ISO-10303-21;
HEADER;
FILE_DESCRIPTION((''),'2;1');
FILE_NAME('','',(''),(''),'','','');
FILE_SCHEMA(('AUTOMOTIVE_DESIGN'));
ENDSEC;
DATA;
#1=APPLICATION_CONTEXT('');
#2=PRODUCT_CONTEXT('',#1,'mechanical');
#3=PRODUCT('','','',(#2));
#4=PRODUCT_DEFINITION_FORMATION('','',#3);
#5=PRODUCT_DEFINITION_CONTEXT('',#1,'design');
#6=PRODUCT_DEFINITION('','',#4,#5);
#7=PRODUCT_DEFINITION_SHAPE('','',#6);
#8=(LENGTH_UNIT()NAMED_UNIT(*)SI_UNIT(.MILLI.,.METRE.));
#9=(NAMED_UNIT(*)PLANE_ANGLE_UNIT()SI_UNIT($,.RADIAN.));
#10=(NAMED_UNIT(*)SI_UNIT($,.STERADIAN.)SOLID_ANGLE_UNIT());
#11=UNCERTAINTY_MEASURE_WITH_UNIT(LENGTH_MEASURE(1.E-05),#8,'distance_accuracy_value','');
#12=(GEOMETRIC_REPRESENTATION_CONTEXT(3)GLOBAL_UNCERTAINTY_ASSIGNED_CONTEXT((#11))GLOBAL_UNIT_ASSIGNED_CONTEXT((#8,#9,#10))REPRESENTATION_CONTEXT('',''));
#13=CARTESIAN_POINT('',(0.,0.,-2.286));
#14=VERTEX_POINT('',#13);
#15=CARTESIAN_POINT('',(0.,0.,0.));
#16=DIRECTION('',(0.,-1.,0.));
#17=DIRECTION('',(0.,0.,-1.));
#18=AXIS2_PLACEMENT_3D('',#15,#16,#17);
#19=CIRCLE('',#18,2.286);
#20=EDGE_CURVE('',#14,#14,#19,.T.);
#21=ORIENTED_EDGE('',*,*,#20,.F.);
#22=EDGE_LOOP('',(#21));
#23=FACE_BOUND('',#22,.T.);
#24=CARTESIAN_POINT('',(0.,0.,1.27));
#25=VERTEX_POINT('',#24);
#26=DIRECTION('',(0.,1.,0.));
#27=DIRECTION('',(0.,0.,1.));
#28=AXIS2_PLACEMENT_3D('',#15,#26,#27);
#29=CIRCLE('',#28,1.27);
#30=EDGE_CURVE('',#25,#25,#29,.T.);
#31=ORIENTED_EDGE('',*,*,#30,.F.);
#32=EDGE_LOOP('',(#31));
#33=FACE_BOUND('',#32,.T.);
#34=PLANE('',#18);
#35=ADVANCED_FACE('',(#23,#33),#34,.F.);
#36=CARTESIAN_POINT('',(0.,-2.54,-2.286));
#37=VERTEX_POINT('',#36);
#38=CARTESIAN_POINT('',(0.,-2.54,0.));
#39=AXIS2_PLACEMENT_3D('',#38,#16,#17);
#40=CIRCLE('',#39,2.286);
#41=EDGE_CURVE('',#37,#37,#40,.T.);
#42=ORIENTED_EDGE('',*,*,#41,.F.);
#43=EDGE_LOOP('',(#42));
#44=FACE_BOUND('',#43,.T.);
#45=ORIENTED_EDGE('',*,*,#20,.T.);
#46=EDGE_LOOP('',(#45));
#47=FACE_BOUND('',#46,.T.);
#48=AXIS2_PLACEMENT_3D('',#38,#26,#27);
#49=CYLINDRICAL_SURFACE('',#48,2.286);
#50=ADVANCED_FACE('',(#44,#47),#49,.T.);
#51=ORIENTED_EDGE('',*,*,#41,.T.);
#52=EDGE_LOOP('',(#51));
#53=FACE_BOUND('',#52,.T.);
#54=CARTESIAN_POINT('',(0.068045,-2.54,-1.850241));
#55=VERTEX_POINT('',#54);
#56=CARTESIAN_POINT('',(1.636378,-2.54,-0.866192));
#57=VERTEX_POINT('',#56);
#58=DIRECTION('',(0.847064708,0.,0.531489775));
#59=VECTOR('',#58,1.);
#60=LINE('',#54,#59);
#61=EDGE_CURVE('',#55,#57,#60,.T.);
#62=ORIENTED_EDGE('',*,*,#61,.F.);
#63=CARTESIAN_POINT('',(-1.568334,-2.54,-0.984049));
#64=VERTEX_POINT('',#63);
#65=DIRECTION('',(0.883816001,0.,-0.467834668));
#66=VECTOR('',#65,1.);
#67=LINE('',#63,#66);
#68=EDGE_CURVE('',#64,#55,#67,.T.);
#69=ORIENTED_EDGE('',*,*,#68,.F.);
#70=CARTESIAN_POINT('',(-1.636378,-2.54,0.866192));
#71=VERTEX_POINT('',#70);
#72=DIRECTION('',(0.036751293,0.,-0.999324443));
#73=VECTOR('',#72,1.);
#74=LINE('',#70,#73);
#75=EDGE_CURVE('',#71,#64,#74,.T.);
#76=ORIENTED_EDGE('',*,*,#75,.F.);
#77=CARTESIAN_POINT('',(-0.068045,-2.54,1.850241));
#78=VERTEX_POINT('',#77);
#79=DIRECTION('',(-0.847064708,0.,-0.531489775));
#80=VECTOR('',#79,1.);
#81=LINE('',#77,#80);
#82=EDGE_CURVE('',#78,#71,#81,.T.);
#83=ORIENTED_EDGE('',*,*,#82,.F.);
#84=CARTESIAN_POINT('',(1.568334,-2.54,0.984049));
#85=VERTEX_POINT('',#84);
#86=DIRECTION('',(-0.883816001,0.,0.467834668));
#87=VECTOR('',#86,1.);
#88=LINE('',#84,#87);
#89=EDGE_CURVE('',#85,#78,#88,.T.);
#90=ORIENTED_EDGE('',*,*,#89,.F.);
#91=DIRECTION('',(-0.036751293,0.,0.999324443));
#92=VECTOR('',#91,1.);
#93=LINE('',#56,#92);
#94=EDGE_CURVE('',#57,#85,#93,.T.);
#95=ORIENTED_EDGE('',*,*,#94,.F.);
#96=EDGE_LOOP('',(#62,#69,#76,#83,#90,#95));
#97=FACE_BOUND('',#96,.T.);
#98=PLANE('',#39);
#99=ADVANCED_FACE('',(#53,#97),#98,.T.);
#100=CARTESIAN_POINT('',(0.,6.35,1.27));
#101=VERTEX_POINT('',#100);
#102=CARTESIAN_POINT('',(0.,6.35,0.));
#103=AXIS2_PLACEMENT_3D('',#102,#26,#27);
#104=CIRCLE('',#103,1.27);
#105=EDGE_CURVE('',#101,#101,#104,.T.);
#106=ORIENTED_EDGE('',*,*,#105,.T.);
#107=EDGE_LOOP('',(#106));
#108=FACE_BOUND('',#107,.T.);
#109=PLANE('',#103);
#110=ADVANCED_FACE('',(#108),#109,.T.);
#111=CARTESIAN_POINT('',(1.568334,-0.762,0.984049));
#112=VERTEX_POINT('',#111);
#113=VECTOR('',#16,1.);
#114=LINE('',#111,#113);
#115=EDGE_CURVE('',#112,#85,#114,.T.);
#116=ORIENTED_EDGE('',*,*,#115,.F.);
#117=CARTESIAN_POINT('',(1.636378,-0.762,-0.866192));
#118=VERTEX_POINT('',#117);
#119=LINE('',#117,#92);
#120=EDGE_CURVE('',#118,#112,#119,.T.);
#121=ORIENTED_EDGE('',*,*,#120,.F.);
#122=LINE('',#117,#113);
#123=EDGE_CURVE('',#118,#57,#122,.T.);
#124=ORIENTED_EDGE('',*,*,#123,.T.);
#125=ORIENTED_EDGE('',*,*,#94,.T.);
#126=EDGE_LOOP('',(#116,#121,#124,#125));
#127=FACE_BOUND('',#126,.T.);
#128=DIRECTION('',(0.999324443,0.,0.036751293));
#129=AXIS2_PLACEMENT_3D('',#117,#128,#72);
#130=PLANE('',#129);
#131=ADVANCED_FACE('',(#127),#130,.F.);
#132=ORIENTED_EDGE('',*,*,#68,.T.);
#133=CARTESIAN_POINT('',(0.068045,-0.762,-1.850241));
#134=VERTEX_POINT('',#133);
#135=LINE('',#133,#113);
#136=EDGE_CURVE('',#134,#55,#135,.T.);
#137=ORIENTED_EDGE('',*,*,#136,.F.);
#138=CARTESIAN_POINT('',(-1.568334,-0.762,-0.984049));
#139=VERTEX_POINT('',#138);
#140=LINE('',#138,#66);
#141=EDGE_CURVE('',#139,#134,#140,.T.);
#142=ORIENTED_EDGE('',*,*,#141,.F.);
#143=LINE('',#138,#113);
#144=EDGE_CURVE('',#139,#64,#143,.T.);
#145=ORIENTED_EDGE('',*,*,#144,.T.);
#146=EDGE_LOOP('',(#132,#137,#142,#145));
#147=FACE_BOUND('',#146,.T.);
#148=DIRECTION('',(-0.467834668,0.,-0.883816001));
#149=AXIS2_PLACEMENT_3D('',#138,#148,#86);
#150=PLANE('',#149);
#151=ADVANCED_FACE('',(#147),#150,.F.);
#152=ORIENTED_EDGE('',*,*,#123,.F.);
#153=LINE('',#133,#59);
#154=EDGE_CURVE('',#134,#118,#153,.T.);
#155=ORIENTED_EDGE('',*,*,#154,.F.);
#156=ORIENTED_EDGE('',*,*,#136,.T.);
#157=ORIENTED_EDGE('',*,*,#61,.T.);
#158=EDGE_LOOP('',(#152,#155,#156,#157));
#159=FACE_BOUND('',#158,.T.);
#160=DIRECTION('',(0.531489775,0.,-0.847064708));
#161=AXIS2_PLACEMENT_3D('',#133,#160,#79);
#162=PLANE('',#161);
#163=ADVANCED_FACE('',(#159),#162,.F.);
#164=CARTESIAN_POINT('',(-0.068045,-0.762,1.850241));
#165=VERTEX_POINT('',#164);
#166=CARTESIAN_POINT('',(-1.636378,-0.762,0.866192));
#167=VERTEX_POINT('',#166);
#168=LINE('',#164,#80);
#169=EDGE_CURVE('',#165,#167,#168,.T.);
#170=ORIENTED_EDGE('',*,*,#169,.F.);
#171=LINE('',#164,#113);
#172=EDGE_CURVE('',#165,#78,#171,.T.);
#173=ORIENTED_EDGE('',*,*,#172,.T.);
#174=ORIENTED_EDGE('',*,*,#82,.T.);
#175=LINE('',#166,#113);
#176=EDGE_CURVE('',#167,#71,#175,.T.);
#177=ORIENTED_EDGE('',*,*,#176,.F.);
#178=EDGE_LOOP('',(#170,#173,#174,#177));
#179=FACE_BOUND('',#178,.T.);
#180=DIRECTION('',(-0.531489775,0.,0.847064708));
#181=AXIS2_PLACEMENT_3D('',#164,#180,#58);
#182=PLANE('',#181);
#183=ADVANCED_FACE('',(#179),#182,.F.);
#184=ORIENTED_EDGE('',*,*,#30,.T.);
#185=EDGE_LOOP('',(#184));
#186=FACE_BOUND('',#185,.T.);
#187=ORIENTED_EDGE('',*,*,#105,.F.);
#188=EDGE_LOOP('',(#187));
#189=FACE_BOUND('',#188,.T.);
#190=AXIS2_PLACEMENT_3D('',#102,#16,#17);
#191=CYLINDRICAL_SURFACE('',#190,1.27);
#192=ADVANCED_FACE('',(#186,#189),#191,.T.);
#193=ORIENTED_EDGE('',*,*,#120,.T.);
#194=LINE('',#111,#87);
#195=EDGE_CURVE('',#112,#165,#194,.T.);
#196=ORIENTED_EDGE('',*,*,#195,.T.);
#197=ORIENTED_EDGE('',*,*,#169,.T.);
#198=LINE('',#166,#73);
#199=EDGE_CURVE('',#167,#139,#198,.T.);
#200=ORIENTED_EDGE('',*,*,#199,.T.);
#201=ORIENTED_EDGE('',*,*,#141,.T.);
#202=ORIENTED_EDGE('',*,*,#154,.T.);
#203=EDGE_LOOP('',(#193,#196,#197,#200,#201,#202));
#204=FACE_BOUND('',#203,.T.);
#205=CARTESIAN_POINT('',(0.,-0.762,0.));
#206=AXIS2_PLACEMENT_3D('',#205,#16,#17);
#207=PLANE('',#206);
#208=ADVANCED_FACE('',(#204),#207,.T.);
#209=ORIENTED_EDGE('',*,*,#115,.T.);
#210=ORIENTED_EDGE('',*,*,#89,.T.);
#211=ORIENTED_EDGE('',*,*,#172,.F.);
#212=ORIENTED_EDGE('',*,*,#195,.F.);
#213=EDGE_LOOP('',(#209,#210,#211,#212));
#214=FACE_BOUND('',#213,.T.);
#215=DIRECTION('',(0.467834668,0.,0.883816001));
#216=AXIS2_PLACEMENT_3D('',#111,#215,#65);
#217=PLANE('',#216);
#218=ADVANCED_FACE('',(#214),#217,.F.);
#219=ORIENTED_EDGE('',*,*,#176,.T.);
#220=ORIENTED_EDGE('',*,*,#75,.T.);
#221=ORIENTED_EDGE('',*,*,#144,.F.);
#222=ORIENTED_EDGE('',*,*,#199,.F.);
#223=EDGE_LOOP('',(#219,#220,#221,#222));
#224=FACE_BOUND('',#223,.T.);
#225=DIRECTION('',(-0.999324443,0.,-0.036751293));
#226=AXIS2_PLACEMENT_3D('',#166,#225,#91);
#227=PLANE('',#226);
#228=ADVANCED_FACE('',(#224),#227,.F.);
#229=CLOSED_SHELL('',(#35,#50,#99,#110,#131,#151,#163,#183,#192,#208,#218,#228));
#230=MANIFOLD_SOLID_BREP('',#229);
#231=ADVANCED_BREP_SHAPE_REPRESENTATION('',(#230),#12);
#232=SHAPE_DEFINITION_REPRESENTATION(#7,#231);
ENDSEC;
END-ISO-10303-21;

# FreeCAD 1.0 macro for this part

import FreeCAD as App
import Part
import Sketcher
from FreeCAD import Vector
Q = App.Units.Quantity

doc = App.newDocument("Part")
params = doc.addObject("Spreadsheet::Sheet", "Params")
for row, (alias, value) in enumerate([
    ("sketch1_diameter", "0.1 in"),
    ("pad1_length", "0.25 in"),
    ("sketch2_diameter", "0.18 in"),
    ("pad2_length", "0.1 in"),
    ("pocket1_length", "0.07 in"),
], start=1):
    params.set(f"A{row}", alias)
    params.set(f"B{row}", "=" + value)
    params.setAlias(f"B{row}", alias)

body = doc.addObject("PartDesign::Body", "Body")

# Sketch on XZ plane
sketch1 = body.newObject("Sketcher::SketchObject", "Sketch")
sketch1.AttachmentSupport = (doc.getObject("XZ_Plane"), [""])
sketch1.MapMode = "FlatFace"
sketch1.addGeometry(Part.Circle(Vector(0, 0, 0), Vector(0, 0, 1), 1.3), False)
sketch1.addConstraint(Sketcher.Constraint("Coincident", 0, 3, -1, 1))
sketch1.addConstraint(Sketcher.Constraint("Diameter", 0, Q("0.1 in")))
sketch1.setExpression("Constraints[1]", "Params.sketch1_diameter")
pad1 = body.newObject("PartDesign::Pad", "Pad")
pad1.Profile = sketch1
pad1.setExpression("Length", "Params.pad1_length")
pad1.Reversed = True

# Sketch on XZ plane
sketch2 = body.newObject("Sketcher::SketchObject", "Sketch001")
sketch2.AttachmentSupport = (doc.getObject("XZ_Plane"), [""])
sketch2.MapMode = "FlatFace"
sketch2.addGeometry(Part.Circle(Vector(0, 0, 0), Vector(0, 0, 1), 2.3), False)
sketch2.addConstraint(Sketcher.Constraint("Coincident", 0, 3, -1, 1))
sketch2.addConstraint(Sketcher.Constraint("Diameter", 0, Q("0.18 in")))
sketch2.setExpression("Constraints[1]", "Params.sketch2_diameter")
pad2 = body.newObject("PartDesign::Pad", "Pad001")
pad2.Profile = sketch2
pad2.setExpression("Length", "Params.pad2_length")

# Sketch on XZ plane
sketch3 = body.newObject("Sketcher::SketchObject", "Sketch002")
sketch3.AttachmentSupport = (doc.getObject("XZ_Plane"), [""])
sketch3.MapMode = "FlatFace"
sketch3.AttachmentOffset = App.Placement(Vector(0, 0, 0.1 * 25.4), App.Rotation())
sketch3.addGeometry(Part.LineSegment(Vector(0.1, -1.9, 0), Vector(1.6, -0.9, 0)), False)
sketch3.addGeometry(Part.LineSegment(Vector(1.6, -0.9, 0), Vector(1.6, 1, 0)), False)
sketch3.addGeometry(Part.LineSegment(Vector(1.6, 1, 0), Vector(-0.1, 1.9, 0)), False)
sketch3.addGeometry(Part.LineSegment(Vector(-0.1, 1.9, 0), Vector(-1.6, 0.9, 0)), False)
sketch3.addGeometry(Part.LineSegment(Vector(-1.6, 0.9, 0), Vector(-1.6, -1, 0)), False)
sketch3.addGeometry(Part.LineSegment(Vector(-1.6, -1, 0), Vector(0.1, -1.9, 0)), False)
sketch3.addConstraint(Sketcher.Constraint("Coincident", 0, 2, 1, 1))
sketch3.addConstraint(Sketcher.Constraint("Coincident", 1, 2, 2, 1))
sketch3.addConstraint(Sketcher.Constraint("Coincident", 2, 2, 3, 1))
sketch3.addConstraint(Sketcher.Constraint("Coincident", 3, 2, 4, 1))
sketch3.addConstraint(Sketcher.Constraint("Coincident", 4, 2, 5, 1))
sketch3.addConstraint(Sketcher.Constraint("Coincident", 5, 2, 0, 1))
sketch3.addConstraint(Sketcher.Constraint("Symmetric", 0, 2, 3, 2, -1, 1))
sketch3.addConstraint(Sketcher.Constraint("Symmetric", 1, 2, 4, 2, -1, 1))
sketch3.addConstraint(Sketcher.Constraint("Symmetric", 2, 2, 5, 2, -1, 1))
sketch3.addConstraint(Sketcher.Constraint("Equal", 0, 1))
sketch3.addConstraint(Sketcher.Constraint("Equal", 1, 2))
sketch3.addConstraint(Sketcher.Constraint("DistanceY", 4, 2, 1, 2, Q("1.968098 mm")))
sketch3.addConstraint(Sketcher.Constraint("DistanceX", -1, 1, 0, 2, Q("1.636378 mm")))
sketch3.addConstraint(Sketcher.Constraint("DistanceY", -1, 1, 2, 2, Q("1.850241 mm")))
sketch3.addConstraint(Sketcher.Constraint("DistanceY", 0, 2, 1, 2, Q("1.850241 mm")))
pocket1 = body.newObject("PartDesign::Pocket", "Pocket")
pocket1.Profile = sketch3
pocket1.setExpression("Length", "Params.pocket1_length")

doc.recompute()
